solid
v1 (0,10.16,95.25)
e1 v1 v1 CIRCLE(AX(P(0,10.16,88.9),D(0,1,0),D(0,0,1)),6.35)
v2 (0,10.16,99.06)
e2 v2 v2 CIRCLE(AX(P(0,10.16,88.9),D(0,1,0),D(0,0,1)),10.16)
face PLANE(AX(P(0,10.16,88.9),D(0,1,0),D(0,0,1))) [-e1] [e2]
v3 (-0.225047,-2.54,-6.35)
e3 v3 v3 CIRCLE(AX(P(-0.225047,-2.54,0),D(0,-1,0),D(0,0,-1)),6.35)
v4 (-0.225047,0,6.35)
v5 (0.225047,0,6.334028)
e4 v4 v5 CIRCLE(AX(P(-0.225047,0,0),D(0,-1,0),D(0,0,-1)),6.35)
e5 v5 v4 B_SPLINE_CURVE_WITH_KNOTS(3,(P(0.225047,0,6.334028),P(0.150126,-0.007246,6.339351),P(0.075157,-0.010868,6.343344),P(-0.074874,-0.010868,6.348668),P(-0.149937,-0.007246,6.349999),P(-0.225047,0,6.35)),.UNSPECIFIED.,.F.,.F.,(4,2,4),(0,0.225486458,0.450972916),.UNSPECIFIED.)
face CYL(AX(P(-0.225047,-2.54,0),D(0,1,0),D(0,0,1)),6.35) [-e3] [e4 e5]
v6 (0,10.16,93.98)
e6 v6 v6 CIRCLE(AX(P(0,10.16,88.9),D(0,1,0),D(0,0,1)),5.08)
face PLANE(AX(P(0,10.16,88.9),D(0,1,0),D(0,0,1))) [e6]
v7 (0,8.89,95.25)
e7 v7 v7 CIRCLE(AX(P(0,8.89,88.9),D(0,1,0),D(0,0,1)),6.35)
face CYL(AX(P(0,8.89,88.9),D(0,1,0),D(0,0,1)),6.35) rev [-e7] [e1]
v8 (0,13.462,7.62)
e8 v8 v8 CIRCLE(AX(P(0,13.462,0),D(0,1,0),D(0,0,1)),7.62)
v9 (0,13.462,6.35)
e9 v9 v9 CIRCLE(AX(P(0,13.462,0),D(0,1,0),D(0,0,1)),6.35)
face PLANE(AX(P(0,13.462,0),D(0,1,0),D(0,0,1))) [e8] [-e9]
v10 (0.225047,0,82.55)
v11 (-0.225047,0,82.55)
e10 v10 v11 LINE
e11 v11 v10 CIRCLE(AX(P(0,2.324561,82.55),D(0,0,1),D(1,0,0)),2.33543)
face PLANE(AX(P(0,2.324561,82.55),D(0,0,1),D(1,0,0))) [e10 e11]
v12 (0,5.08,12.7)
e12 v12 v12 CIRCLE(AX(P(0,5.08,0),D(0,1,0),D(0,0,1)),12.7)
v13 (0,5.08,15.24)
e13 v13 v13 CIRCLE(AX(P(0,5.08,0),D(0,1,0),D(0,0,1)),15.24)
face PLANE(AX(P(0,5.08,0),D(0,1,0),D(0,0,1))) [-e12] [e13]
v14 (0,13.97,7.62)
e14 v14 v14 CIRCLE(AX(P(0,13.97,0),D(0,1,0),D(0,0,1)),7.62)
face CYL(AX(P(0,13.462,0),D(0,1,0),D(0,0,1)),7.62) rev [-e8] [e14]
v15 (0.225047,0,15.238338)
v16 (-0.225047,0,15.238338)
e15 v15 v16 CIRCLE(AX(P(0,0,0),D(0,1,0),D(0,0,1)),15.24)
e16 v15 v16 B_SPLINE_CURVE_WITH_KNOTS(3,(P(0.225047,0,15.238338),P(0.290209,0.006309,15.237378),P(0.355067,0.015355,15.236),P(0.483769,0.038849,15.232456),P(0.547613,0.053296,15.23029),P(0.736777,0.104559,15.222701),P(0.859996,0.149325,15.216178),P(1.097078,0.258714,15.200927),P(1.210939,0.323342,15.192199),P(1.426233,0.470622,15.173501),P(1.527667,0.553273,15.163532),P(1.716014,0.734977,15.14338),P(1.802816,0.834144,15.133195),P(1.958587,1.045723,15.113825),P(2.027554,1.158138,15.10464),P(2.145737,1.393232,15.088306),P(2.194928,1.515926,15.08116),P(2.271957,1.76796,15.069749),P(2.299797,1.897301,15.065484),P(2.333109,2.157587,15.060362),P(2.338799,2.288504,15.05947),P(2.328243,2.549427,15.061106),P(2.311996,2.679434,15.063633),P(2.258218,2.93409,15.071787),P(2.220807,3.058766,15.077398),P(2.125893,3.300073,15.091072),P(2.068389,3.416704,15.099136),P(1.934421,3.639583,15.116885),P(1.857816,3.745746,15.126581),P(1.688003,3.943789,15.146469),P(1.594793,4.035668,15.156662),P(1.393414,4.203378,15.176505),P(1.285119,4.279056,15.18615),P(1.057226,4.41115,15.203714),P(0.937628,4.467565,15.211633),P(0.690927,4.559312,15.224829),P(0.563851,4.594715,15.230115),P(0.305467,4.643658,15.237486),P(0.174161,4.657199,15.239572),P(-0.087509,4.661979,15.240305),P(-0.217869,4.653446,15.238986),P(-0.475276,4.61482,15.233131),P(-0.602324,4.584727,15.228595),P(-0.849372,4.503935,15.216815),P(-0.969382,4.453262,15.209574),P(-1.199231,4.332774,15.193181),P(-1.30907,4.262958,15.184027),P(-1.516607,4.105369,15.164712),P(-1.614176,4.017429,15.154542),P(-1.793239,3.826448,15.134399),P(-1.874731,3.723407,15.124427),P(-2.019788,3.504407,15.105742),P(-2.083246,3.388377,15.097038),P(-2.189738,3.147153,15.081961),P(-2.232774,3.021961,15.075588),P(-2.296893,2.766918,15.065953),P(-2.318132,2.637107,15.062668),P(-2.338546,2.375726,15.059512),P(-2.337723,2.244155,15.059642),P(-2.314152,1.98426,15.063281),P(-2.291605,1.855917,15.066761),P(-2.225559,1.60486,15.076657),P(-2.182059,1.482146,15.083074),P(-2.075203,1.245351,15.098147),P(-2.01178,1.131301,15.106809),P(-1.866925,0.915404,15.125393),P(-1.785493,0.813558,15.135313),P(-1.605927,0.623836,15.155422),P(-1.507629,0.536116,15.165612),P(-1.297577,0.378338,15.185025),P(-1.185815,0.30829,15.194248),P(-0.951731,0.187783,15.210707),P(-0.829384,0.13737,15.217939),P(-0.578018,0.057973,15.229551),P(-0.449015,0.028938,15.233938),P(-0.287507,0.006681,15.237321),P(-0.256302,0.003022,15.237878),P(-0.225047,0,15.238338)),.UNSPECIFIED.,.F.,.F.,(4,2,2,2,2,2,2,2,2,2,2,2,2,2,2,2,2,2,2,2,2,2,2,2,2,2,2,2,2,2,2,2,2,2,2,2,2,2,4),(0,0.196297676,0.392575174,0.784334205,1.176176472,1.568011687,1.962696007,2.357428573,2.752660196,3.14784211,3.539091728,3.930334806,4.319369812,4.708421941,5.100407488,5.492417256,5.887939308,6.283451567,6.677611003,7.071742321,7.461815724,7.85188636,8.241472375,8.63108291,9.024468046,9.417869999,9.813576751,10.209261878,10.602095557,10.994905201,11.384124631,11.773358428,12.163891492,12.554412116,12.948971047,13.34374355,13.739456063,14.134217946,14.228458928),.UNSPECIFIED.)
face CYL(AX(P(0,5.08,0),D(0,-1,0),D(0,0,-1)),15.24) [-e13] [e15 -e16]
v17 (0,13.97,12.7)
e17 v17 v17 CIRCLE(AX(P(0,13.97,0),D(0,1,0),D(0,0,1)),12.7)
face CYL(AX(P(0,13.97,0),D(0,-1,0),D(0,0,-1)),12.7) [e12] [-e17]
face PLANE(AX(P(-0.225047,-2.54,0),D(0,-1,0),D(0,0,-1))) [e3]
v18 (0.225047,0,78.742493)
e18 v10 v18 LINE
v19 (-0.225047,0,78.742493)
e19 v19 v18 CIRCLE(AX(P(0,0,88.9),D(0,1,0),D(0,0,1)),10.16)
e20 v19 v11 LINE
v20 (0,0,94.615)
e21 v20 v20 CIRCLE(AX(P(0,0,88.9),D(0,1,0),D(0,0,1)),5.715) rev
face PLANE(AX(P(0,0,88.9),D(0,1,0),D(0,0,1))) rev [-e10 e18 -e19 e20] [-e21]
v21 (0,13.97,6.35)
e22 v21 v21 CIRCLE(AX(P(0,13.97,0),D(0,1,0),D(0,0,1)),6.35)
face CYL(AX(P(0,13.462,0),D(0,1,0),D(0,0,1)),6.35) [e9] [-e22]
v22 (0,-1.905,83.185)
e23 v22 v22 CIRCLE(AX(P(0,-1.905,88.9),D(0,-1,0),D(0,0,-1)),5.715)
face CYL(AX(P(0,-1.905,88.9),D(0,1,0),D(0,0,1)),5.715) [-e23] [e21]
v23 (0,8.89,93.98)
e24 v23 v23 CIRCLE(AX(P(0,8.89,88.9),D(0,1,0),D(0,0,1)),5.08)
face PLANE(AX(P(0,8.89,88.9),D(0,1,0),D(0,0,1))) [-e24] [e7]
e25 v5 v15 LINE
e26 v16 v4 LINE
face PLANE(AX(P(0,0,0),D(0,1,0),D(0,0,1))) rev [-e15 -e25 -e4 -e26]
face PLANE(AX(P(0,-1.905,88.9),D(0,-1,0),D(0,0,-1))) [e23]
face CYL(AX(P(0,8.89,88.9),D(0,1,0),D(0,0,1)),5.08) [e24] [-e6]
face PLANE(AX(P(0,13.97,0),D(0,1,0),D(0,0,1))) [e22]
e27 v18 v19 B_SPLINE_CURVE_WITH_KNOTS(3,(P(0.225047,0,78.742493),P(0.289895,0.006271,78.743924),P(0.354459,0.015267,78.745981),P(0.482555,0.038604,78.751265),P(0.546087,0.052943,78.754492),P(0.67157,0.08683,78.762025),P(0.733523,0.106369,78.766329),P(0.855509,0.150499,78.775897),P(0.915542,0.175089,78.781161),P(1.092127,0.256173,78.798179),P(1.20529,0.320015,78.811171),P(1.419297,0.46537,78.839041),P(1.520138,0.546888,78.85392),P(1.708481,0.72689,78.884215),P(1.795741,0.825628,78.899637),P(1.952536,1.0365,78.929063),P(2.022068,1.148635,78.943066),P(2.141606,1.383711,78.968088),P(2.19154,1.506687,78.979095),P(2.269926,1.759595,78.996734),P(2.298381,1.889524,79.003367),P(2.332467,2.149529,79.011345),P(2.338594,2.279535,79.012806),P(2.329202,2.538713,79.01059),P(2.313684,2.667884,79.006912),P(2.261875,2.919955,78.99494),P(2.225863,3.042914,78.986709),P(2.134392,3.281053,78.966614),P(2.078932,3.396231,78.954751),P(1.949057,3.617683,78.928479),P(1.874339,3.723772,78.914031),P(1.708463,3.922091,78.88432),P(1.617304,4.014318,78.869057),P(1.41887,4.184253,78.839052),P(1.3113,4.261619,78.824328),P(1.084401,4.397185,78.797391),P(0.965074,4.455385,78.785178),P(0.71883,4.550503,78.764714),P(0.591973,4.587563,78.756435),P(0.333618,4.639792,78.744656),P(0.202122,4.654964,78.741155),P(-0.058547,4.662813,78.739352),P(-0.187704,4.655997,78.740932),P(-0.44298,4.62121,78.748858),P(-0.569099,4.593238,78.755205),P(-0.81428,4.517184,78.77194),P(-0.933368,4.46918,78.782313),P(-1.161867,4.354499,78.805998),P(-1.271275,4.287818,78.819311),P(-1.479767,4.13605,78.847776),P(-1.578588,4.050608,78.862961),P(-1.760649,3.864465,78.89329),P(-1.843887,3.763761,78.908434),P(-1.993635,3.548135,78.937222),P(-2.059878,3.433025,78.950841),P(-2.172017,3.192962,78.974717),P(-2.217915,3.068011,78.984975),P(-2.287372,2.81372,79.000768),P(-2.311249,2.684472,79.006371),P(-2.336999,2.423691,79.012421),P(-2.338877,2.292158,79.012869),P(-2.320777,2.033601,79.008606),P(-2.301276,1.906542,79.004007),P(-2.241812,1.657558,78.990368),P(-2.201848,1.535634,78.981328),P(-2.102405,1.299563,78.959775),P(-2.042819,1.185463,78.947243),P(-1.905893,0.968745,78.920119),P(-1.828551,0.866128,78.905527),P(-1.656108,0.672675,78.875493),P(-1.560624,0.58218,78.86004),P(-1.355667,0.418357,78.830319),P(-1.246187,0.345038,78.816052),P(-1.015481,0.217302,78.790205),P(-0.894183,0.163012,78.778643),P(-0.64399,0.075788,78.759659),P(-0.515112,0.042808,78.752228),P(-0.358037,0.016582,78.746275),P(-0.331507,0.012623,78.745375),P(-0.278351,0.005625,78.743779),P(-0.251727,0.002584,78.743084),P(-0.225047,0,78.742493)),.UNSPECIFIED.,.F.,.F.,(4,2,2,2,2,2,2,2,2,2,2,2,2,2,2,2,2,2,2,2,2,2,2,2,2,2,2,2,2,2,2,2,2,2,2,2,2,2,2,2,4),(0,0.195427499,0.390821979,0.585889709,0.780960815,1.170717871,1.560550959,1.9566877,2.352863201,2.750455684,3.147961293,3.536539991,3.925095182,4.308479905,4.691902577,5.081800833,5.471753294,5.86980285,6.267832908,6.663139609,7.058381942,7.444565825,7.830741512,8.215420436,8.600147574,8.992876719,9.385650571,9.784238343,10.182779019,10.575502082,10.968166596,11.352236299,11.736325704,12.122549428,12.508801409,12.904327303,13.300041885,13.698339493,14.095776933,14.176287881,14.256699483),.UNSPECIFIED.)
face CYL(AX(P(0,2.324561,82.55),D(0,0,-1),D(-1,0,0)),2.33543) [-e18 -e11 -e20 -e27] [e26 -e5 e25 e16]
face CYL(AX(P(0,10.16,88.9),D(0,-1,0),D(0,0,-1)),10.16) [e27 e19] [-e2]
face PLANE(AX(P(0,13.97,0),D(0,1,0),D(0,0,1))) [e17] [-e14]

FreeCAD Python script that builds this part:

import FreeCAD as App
import Part
import Sketcher
from FreeCAD import Vector
Q = App.Units.Quantity

doc = App.newDocument("Part")
params = doc.addObject("Spreadsheet::Sheet", "Params")
for row, (alias, value) in enumerate([
    ("sketch1_diameter", "1.2 in"),
    ("pad1_length", "0.2 in"),
    ("sketch2_diameter", "1 in"),
    ("pad2_length", "0.35 in"),
    ("sketch3_diameter", "0.6 in"),
    ("sketch3_diameter2", "0.5 in"),
    ("pocket1_length", "0.02 in"),
    ("sketch4_diameter", "0.8 in"),
    ("pad3_length", "0.4 in"),
    ("sketch5_diameter", "0.5 in"),
    ("sketch5_diameter2", "0.4 in"),
    ("pocket2_length", "0.05 in"),
    ("pad4_length", "3.25 in"),
    ("sketch7_diameter", "0.5 in"),
    ("pad5_length", "0.1 in"),
    ("sketch8_diameter", "0.45 in"),
    ("pad6_length", "0.075 in"),
], start=1):
    params.set(f"A{row}", alias)
    params.set(f"B{row}", "=" + value)
    params.setAlias(f"B{row}", alias)

body = doc.addObject("PartDesign::Body", "Body")

# Sketch on XZ plane
sketch1 = body.newObject("Sketcher::SketchObject", "Sketch")
sketch1.AttachmentSupport = (doc.getObject("XZ_Plane"), [""])
sketch1.MapMode = "FlatFace"
sketch1.addGeometry(Part.Circle(Vector(0, 0, 0), Vector(0, 0, 1), 15), False)
sketch1.addConstraint([
    Sketcher.Constraint("Coincident", 0, 3, -1, 1),
    Sketcher.Constraint("Diameter", 0, Q("1.2 in")),
])
sketch1.setExpression("Constraints[1]", "Params.sketch1_diameter")
pad1 = body.newObject("PartDesign::Pad", "Pad")
pad1.Profile = sketch1
pad1.setExpression("Length", "Params.pad1_length")
pad1.Reversed = True

# Sketch on XZ plane
sketch2 = body.newObject("Sketcher::SketchObject", "Sketch001")
sketch2.AttachmentSupport = (doc.getObject("XZ_Plane"), [""])
sketch2.MapMode = "FlatFace"
sketch2.AttachmentOffset = App.Placement(Vector(0, 0, -0.2 * 25.4), App.Rotation())
sketch2.addGeometry(Part.Circle(Vector(0, 0, 0), Vector(0, 0, 1), 13), False)
sketch2.addConstraint([
    Sketcher.Constraint("Coincident", 0, 3, -1, 1),
    Sketcher.Constraint("Diameter", 0, Q("1 in")),
])
sketch2.setExpression("Constraints[1]", "Params.sketch2_diameter")
pad2 = body.newObject("PartDesign::Pad", "Pad001")
pad2.Profile = sketch2
pad2.setExpression("Length", "Params.pad2_length")
pad2.Reversed = True

# Sketch on XZ plane
sketch3 = body.newObject("Sketcher::SketchObject", "Sketch002")
sketch3.AttachmentSupport = (doc.getObject("XZ_Plane"), [""])
sketch3.MapMode = "FlatFace"
sketch3.AttachmentOffset = App.Placement(Vector(0, 0, -0.55 * 25.4), App.Rotation())
sketch3.addGeometry([
    Part.Circle(Vector(0, 0, 0), Vector(0, 0, 1), 8),
    Part.Circle(Vector(0, 0, 0), Vector(0, 0, 1), 6),
], False)
sketch3.addConstraint([
    Sketcher.Constraint("Coincident", 0, 3, -1, 1),
    Sketcher.Constraint("Coincident", 1, 3, -1, 1),
    Sketcher.Constraint("Diameter", 0, Q("0.6 in")),
    Sketcher.Constraint("Diameter", 1, Q("0.5 in")),
])
sketch3.setExpression("Constraints[2]", "Params.sketch3_diameter")
sketch3.setExpression("Constraints[3]", "Params.sketch3_diameter2")
pocket1 = body.newObject("PartDesign::Pocket", "Pocket")
pocket1.Profile = sketch3
pocket1.setExpression("Length", "Params.pocket1_length")
pocket1.Reversed = True
body2 = doc.addObject("PartDesign::Body", "Body001")

# Sketch on XZ plane
sketch4 = body2.newObject("Sketcher::SketchObject", "Sketch003")
sketch4.AttachmentSupport = (doc.getObject("XZ_Plane001"), [""])
sketch4.MapMode = "FlatFace"
sketch4.addGeometry(Part.Circle(Vector(0, 89, 0), Vector(0, 0, 1), 10), False)
sketch4.addConstraint([
    Sketcher.Constraint("PointOnObject", 0, 3, -2),
    Sketcher.Constraint("Diameter", 0, Q("0.8 in")),
    Sketcher.Constraint("DistanceY", -1, 1, 0, 3, Q("3.5 in")),
])
sketch4.setExpression("Constraints[1]", "Params.sketch4_diameter")
pad3 = body2.newObject("PartDesign::Pad", "Pad002")
pad3.Profile = sketch4
pad3.setExpression("Length", "Params.pad3_length")
pad3.Reversed = True

# Sketch on XZ plane
sketch5 = body2.newObject("Sketcher::SketchObject", "Sketch004")
sketch5.AttachmentSupport = (doc.getObject("XZ_Plane001"), [""])
sketch5.MapMode = "FlatFace"
sketch5.AttachmentOffset = App.Placement(Vector(0, 0, -0.4 * 25.4), App.Rotation())
sketch5.addGeometry([
    Part.Circle(Vector(0, 89, 0), Vector(0, 0, 1), 6),
    Part.Circle(Vector(0, 89, 0), Vector(0, 0, 1), 5),
], False)
sketch5.addConstraint([
    Sketcher.Constraint("Coincident", 1, 3, 0, 3),
    Sketcher.Constraint("PointOnObject", 0, 3, -2),
    Sketcher.Constraint("Diameter", 0, Q("0.5 in")),
    Sketcher.Constraint("Diameter", 1, Q("0.4 in")),
    Sketcher.Constraint("DistanceY", -1, 1, 0, 3, Q("3.5 in")),
])
sketch5.setExpression("Constraints[2]", "Params.sketch5_diameter")
sketch5.setExpression("Constraints[3]", "Params.sketch5_diameter2")
pocket2 = body2.newObject("PartDesign::Pocket", "Pocket001")
pocket2.Profile = sketch5
pocket2.setExpression("Length", "Params.pocket2_length")
pocket2.Reversed = True
body.AllowCompound = True
doc.recompute()

boolean = body.newObject("PartDesign::Boolean", "Boolean")
boolean.Type = "Fuse"
boolean.addObjects([body2])

# Sketch on XY plane
sketch6 = body.newObject("Sketcher::SketchObject", "Sketch005")
sketch6.AttachmentSupport = (doc.getObject("XY_Plane"), [""])
sketch6.MapMode = "FlatFace"
sketch6.addGeometry(Part.Circle(Vector(0, 2.3, 0), Vector(0, 0, 1), 2.3), False)
sketch6.addConstraint([
    Sketcher.Constraint("PointOnObject", 0, 3, -2),
    Sketcher.Constraint("Diameter", 0, 4.67086),
    Sketcher.Constraint("DistanceY", -1, 1, 0, 3, 2.324561),
])
pad4 = body.newObject("PartDesign::Pad", "Pad003")
pad4.Profile = sketch6
pad4.setExpression("Length", "Params.pad4_length")

# Sketch on XZ plane
sketch7 = body.newObject("Sketcher::SketchObject", "Sketch006")
sketch7.AttachmentSupport = (doc.getObject("XZ_Plane"), [""])
sketch7.MapMode = "FlatFace"
sketch7.addGeometry(Part.Circle(Vector(0, 0, 0), Vector(0, 0, 1), 6), False)
sketch7.addConstraint([
    Sketcher.Constraint("PointOnObject", 0, 3, -1),
    Sketcher.Constraint("Diameter", 0, Q("0.5 in")),
    Sketcher.Constraint("DistanceX", 0, 3, -1, 1, 0.225047),
])
sketch7.setExpression("Constraints[1]", "Params.sketch7_diameter")
pad5 = body.newObject("PartDesign::Pad", "Pad004")
pad5.Profile = sketch7
pad5.setExpression("Length", "Params.pad5_length")

# Sketch on XZ plane
sketch8 = body.newObject("Sketcher::SketchObject", "Sketch007")
sketch8.AttachmentSupport = (doc.getObject("XZ_Plane"), [""])
sketch8.MapMode = "FlatFace"
sketch8.addGeometry(Part.Circle(Vector(0, 89, 0), Vector(0, 0, 1), 6), False)
sketch8.addConstraint([
    Sketcher.Constraint("PointOnObject", 0, 3, -2),
    Sketcher.Constraint("Diameter", 0, Q("0.45 in")),
    Sketcher.Constraint("DistanceY", -1, 1, 0, 3, Q("3.5 in")),
])
sketch8.setExpression("Constraints[1]", "Params.sketch8_diameter")
pad6 = body.newObject("PartDesign::Pad", "Pad005")
pad6.Profile = sketch8
pad6.setExpression("Length", "Params.pad6_length")

doc.recompute()
